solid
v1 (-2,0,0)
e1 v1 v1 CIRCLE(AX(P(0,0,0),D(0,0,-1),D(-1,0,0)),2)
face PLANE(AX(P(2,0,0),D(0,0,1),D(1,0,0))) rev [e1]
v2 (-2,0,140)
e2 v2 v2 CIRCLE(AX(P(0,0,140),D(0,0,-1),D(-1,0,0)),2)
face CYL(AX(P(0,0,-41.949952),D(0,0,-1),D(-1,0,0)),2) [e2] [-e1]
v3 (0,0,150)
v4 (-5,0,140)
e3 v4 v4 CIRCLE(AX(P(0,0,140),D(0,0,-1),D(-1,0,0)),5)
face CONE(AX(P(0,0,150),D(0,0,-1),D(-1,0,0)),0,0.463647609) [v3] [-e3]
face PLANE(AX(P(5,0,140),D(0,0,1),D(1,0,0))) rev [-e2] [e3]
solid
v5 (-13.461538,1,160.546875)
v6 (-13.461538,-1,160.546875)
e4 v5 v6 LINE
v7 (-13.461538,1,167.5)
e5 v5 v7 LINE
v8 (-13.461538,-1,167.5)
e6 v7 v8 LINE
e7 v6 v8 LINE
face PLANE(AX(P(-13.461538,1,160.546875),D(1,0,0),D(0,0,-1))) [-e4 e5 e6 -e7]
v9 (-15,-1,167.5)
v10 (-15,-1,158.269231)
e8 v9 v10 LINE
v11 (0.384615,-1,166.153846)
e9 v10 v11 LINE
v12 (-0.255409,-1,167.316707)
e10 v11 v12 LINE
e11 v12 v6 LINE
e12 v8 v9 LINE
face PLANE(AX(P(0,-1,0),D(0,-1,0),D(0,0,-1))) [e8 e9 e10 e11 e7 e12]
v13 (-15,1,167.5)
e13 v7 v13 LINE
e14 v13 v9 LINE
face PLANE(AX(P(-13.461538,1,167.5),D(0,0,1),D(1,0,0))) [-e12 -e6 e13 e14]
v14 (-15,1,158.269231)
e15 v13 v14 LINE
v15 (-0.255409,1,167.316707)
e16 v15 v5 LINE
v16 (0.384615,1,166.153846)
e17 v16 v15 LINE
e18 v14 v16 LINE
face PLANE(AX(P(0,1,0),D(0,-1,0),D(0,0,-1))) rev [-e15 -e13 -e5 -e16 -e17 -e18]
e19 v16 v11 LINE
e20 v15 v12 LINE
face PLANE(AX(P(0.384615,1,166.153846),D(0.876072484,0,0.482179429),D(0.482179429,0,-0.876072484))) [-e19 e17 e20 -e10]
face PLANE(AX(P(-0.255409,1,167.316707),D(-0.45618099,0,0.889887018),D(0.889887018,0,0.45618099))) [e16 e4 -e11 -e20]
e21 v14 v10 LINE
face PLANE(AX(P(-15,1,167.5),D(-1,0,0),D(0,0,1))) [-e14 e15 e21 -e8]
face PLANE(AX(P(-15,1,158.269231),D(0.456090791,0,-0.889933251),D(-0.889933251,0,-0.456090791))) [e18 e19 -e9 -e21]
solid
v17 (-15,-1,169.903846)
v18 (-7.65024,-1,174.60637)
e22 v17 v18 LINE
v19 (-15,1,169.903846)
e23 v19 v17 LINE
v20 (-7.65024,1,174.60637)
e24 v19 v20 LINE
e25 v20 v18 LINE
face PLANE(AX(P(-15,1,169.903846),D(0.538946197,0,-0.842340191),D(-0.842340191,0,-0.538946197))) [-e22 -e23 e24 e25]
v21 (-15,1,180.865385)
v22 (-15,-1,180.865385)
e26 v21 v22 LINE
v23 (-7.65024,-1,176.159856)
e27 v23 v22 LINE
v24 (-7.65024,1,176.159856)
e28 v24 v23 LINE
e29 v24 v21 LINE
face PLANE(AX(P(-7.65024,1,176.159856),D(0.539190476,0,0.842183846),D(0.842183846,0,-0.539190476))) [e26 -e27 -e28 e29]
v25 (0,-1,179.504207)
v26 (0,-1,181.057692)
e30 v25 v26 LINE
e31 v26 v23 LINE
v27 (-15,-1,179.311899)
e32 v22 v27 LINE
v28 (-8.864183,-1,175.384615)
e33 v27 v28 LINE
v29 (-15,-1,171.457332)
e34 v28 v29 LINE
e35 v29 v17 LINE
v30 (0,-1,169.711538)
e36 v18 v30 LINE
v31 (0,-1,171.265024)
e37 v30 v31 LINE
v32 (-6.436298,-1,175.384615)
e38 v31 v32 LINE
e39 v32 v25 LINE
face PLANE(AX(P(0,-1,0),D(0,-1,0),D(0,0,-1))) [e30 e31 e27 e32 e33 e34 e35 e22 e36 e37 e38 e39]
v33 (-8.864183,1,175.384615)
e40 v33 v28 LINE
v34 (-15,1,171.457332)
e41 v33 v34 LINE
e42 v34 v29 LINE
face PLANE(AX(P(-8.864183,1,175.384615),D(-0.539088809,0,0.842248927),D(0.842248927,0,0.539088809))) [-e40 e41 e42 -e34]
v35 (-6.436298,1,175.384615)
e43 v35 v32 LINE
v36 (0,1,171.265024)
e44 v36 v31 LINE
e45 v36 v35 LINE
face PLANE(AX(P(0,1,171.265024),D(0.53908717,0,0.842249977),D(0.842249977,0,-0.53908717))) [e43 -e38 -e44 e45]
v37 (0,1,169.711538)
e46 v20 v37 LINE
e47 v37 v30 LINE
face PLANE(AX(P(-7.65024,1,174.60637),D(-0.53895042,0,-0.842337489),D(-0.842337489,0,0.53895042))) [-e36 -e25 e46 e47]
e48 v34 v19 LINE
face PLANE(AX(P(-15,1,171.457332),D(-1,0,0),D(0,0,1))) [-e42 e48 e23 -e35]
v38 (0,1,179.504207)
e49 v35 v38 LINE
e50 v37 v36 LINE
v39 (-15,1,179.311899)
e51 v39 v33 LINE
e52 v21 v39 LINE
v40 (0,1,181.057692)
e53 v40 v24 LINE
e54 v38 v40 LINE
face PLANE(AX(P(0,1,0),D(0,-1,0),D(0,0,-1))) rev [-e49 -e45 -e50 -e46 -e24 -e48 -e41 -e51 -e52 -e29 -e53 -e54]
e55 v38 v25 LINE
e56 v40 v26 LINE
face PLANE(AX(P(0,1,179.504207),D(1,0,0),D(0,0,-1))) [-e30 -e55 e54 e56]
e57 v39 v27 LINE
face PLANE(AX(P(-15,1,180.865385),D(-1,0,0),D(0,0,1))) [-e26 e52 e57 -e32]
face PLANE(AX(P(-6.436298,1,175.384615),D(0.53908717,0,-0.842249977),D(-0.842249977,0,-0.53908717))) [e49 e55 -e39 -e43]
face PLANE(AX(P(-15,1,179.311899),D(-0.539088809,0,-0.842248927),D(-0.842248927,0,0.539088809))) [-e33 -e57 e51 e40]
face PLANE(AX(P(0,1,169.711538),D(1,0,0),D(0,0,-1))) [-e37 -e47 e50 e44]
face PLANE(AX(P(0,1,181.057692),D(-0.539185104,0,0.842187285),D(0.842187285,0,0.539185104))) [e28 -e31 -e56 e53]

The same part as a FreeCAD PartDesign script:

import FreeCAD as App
import Part
import Sketcher

V = App.Vector
Q = App.Units.Quantity


def add_polygon(sketch, points):
    """Adds a closed chain of lines whose ends are joined by coincident constraints."""
    first, n = sketch.GeometryCount, len(points)
    for a, b in zip(points, points[1:] + points[:1]):
        sketch.addGeometry(Part.LineSegment(App.Vector(*a, 0), App.Vector(*b, 0)), False)
    for i in range(n):
        sketch.addConstraint(Sketcher.Constraint("Coincident", first + i, 2, first + (i + 1) % n, 1))

doc = App.newDocument("Part")
params = doc.addObject("Spreadsheet::Sheet", "Params")
for row, (alias, value) in enumerate([
    ("sketch1_width", "3 mm"),
    ("sketch1_width2", "2 mm"),
    ("sketch1_height", "140 mm"),
    ("sketch1_height2", "150 mm"),
    ("revolution_angle", "360 deg"),
    ("pad1_length", "1 mm"),
    ("pad1_length2", "1 mm"),
    ("pad2_length", "1 mm"),
    ("pad2_length2", "1 mm"),
], start=1):
    params.set(f"A{row}", alias)
    params.set(f"B{row}", "=" + value)
    params.setAlias(f"B{row}", alias)

body = doc.addObject("PartDesign::Body", "Body")

sketch1 = body.newObject("Sketcher::SketchObject", "Sketch")
sketch1.AttachmentSupport = (doc.getObject("XZ_Plane"), [""])
sketch1.MapMode = "FlatFace"
add_polygon(sketch1, [(0, 150), (5, 140), (2, 140), (2, 0), (0, 0)])
sketch1.addConstraint([
    Sketcher.Constraint("Horizontal", 1),
    Sketcher.Constraint("Vertical", 2),
    Sketcher.Constraint("Horizontal", 3),
    Sketcher.Constraint("Vertical", 4),
    Sketcher.Constraint("Coincident", 3, 2, -1, 1),
    Sketcher.Constraint("DistanceX", 1, 2, 1, 1, Q("3 mm")),
    Sketcher.Constraint("DistanceX", 3, 2, 3, 1, Q("2 mm")),
    Sketcher.Constraint("DistanceY", 2, 2, 2, 1, Q("140 mm")),
    Sketcher.Constraint("DistanceY", 4, 1, 4, 2, Q("150 mm")),
])
sketch1.setExpression("Constraints[10]", "Params.sketch1_width")
sketch1.setExpression("Constraints[11]", "Params.sketch1_width2")
sketch1.setExpression("Constraints[12]", "Params.sketch1_height")
sketch1.setExpression("Constraints[13]", "Params.sketch1_height2")
revolution = body.newObject("PartDesign::Revolution", "Revolution")
revolution.Profile = sketch1
revolution.ReferenceAxis = (sketch1, ["V_Axis"])
revolution.setExpression("Angle", "Params.revolution_angle")
body2 = doc.addObject("PartDesign::Body", "Body001")

sketch2 = body2.newObject("Sketcher::SketchObject", "Sketch001")
sketch2.AttachmentSupport = (doc.getObject("XZ_Plane001"), [""])
sketch2.MapMode = "FlatFace"
add_polygon(sketch2, [(-15, 158.3), (-15, 167.5), (-13.5, 167.5), (-13.5, 160.5), (-0.3, 167.3), (0.4, 166.2)])
sketch2.addConstraint([
    Sketcher.Constraint("Vertical", 0),
    Sketcher.Constraint("Horizontal", 1),
    Sketcher.Constraint("Vertical", 2),
    Sketcher.Constraint("DistanceX", 0, 2, -1, 1, Q("15 mm")),
    Sketcher.Constraint("DistanceY", -1, 1, 0, 2, Q("167.5 mm")),
    Sketcher.Constraint("DistanceX", 1, 1, 1, 2, Q("1.538462 mm")),
    Sketcher.Constraint("DistanceY", 0, 1, 0, 2, Q("9.230769 mm")),
    Sketcher.Constraint("Distance", 5, Q("17.287381 mm")),
    Sketcher.Constraint("DistanceY", 2, 2, 2, 1, Q("6.953125 mm")),
    Sketcher.Constraint("DistanceX", 3, 2, -1, 1, Q("0.255409 mm")),
    Sketcher.Constraint("DistanceY", 2, 2, 3, 2, Q("6.769832 mm")),
    Sketcher.Constraint("DistanceY", 4, 2, 3, 2, Q("1.162861 mm")),
])
pad1 = body2.newObject("PartDesign::Pad", "Pad")
pad1.Profile = sketch2
pad1.Type = "TwoLengths"
pad1.setExpression("Length", "Params.pad1_length")
pad1.setExpression("Length2", "Params.pad1_length2")
pad1.Reversed = True
body3 = doc.addObject("PartDesign::Body", "Body002")

sketch3 = body3.newObject("Sketcher::SketchObject", "Sketch002")
sketch3.AttachmentSupport = (doc.getObject("XZ_Plane002"), [""])
sketch3.MapMode = "FlatFace"
add_polygon(sketch3, [(-15, 179.311899), (-15, 180.865385), (-7.65024, 176.159856), (0, 181.057692), (0, 179.504207), (-6.436298, 175.384615), (0, 171.265024), (0, 169.711538), (-7.65024, 174.60637), (-15, 169.903846), (-15, 171.457332), (-8.864183, 175.384615)])
sketch3.addConstraint([
    Sketcher.Constraint("Vertical", 0),
    Sketcher.Constraint("Vertical", 3),
    Sketcher.Constraint("Vertical", 6),
    Sketcher.Constraint("Vertical", 9),
    Sketcher.Constraint("PointOnObject", 2, 2, -2),
    Sketcher.Constraint("PointOnObject", 5, 2, -2),
    Sketcher.Constraint("DistanceX", 0, 2, -1, 1, Q("15 mm")),
    Sketcher.Constraint("DistanceX", 8, 2, -1, 1, Q("15 mm")),
    Sketcher.Constraint("DistanceX", 4, 2, -1, 1, Q("6.436298 mm")),
    Sketcher.Constraint("DistanceY", -1, 1, 11, 2, Q("179.311899 mm")),
    Sketcher.Constraint("Distance", 4, Q("7.641791 mm")),
    Sketcher.Constraint("Distance", 5, Q("7.641791 mm")),
    Sketcher.Constraint("Distance", 10, Q("7.28504 mm")),
    Sketcher.Constraint("Distance", 11, Q("7.28504 mm")),
    Sketcher.Constraint("DistanceY", 0, 1, 0, 2, Q("1.553486 mm")),
    Sketcher.Constraint("DistanceY", 3, 2, 3, 1, Q("1.553486 mm")),
    Sketcher.Constraint("DistanceY", 6, 2, 6, 1, Q("1.553486 mm")),
    Sketcher.Constraint("DistanceY", 9, 1, 9, 2, Q("1.553486 mm")),
    Sketcher.Constraint("DistanceX", 1, 2, -1, 1, Q("7.65024 mm")),
    Sketcher.Constraint("DistanceY", -1, 1, 6, 2, Q("169.711538 mm")),
    Sketcher.Constraint("DistanceX", 7, 2, -1, 1, Q("7.65024 mm")),
    Sketcher.Constraint("DistanceY", -1, 1, 7, 2, Q("174.60637 mm")),
    Sketcher.Constraint("DistanceY", -1, 1, 9, 2, Q("171.457332 mm")),
    Sketcher.Constraint("DistanceY", 1, 2, 0, 2, Q("4.705529 mm")),
])
pad2 = body3.newObject("PartDesign::Pad", "Pad001")
pad2.Profile = sketch3
pad2.Type = "TwoLengths"
pad2.setExpression("Length", "Params.pad2_length")
pad2.setExpression("Length2", "Params.pad2_length2")
pad2.Reversed = True

doc.recompute()
